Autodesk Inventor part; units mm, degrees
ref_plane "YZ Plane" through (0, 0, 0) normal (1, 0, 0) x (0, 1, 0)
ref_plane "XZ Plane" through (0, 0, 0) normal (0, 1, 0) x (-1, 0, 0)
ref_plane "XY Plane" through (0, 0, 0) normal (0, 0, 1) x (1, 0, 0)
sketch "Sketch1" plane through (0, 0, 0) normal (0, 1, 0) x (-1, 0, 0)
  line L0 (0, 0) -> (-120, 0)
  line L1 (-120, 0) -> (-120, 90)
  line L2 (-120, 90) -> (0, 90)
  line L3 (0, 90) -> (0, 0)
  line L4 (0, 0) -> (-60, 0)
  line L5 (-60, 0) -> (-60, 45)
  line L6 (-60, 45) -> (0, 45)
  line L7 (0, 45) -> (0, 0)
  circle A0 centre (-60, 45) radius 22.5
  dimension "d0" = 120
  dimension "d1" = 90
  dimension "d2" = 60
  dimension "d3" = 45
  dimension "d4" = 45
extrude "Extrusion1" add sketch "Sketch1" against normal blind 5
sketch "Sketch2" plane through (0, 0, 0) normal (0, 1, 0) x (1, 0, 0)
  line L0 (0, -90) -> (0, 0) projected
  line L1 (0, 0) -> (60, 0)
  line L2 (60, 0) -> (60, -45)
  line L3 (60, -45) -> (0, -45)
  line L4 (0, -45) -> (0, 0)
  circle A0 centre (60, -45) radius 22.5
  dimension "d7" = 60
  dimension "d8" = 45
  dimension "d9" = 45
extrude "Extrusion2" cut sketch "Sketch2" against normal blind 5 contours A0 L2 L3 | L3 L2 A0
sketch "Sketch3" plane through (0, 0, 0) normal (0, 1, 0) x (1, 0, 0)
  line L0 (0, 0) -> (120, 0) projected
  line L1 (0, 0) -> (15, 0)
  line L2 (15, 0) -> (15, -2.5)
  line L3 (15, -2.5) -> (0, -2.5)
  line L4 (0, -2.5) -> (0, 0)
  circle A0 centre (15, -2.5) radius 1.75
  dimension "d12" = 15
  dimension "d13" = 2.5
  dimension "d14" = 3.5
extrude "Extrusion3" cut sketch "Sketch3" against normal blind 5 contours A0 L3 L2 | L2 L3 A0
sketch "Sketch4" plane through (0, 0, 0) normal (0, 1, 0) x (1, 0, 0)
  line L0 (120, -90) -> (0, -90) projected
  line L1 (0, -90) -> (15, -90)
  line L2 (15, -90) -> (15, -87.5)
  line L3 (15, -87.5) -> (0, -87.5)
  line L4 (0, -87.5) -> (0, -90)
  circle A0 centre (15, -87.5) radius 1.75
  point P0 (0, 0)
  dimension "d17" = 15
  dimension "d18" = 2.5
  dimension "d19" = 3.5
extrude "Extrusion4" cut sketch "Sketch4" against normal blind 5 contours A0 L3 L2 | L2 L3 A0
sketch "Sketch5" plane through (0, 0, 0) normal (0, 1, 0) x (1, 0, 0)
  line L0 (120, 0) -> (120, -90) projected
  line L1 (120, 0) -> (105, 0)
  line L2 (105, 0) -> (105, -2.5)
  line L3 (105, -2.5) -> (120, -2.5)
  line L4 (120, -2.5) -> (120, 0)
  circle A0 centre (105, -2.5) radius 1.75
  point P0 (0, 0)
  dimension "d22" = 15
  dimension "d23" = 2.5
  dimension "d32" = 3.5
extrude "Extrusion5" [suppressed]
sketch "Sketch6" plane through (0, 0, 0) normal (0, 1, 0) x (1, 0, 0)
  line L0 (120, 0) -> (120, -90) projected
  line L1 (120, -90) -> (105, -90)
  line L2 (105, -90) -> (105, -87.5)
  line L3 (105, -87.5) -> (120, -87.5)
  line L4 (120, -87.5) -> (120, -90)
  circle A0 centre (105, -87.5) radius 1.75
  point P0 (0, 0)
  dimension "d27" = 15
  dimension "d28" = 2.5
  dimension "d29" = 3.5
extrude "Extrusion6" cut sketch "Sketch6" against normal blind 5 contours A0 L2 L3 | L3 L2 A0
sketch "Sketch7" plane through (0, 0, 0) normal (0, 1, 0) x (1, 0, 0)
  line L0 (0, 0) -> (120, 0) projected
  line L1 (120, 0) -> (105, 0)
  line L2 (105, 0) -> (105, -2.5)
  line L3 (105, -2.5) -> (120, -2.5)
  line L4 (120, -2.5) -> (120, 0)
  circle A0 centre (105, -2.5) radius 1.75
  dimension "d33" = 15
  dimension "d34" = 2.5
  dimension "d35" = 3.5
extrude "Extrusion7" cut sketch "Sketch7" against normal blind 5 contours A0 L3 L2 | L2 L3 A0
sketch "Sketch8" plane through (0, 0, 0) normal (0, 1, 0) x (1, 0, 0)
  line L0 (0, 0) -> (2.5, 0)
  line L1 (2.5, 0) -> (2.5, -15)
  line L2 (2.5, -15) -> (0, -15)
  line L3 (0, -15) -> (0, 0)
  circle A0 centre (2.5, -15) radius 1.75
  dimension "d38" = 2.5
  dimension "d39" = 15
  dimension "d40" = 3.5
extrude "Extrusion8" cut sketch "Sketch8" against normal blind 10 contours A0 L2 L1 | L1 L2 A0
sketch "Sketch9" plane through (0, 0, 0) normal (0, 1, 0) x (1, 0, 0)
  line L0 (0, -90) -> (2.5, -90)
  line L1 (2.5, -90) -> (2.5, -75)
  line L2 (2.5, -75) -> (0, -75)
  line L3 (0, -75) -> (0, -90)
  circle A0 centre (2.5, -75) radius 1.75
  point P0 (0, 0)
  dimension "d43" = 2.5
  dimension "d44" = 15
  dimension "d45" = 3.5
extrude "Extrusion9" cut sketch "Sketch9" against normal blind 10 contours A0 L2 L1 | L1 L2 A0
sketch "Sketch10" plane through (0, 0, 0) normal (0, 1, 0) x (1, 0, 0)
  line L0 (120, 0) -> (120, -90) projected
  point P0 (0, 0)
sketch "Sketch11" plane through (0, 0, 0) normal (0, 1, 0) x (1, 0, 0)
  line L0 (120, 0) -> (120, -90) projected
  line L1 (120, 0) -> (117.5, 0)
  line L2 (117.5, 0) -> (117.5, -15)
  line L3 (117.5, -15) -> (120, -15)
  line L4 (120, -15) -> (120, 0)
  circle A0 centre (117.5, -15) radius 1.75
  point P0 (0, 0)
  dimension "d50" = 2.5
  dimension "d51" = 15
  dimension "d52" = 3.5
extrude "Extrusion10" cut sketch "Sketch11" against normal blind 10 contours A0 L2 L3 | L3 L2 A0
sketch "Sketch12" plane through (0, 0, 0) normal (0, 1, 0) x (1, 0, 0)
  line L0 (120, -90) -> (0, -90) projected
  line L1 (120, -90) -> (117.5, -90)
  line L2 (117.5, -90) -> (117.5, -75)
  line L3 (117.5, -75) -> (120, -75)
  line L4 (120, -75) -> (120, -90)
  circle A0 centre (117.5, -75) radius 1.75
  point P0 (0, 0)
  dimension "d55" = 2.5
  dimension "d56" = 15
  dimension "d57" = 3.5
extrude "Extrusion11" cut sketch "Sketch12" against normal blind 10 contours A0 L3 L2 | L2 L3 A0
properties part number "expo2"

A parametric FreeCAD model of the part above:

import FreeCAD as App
import Part
import Sketcher
Q = App.Units.Quantity


def add_polygon(sketch, points):
    """Adds a closed chain of lines whose ends are joined by coincident constraints."""
    first, n = sketch.GeometryCount, len(points)
    for a, b in zip(points, points[1:] + points[:1]):
        sketch.addGeometry(Part.LineSegment(App.Vector(*a, 0), App.Vector(*b, 0)), False)
    for i in range(n):
        sketch.addConstraint(Sketcher.Constraint("Coincident", first + i, 2, first + (i + 1) % n, 1))

doc = App.newDocument("Part")
body = doc.addObject("PartDesign::Body", "Body")

# Sketch on XZ plane
sketch1 = body.newObject("Sketcher::SketchObject", "Sketch")
sketch1.AttachmentSupport = (doc.getObject("XZ_Plane"), [""])
sketch1.MapMode = "FlatFace"
add_polygon(sketch1, [(0, 0), (0, 90), (120, 90), (120, 0)])  # lines 0-3
sketch1.addConstraint(Sketcher.Constraint("Vertical", 0))
sketch1.addConstraint(Sketcher.Constraint("Horizontal", 1))
sketch1.addConstraint(Sketcher.Constraint("Vertical", 2))
sketch1.addConstraint(Sketcher.Constraint("Horizontal", 3))
sketch1.addConstraint(Sketcher.Constraint("Coincident", 3, 2, -1, 1))
sketch1.addConstraint(Sketcher.Constraint("DistanceX", 1, 1, 1, 2, Q("120 mm")))
sketch1.addConstraint(Sketcher.Constraint("DistanceY", 0, 1, 0, 2, Q("90 mm")))
pad1 = body.newObject("PartDesign::Pad", "Pad")
pad1.Profile = sketch1
pad1.Length = 5

# Sketch on XZ plane
sketch2 = body.newObject("Sketcher::SketchObject", "Sketch001")
sketch2.AttachmentSupport = (doc.getObject("XZ_Plane"), [""])
sketch2.MapMode = "FlatFace"
sketch2.addGeometry(Part.Circle(App.Vector(60, 45, 0), App.Vector(0, 0, 1), 22.5), False)
sketch2.addConstraint(Sketcher.Constraint("Diameter", 0, Q("45 mm")))
sketch2.addConstraint(Sketcher.Constraint("DistanceX", -1, 1, 0, 3, Q("60 mm")))
sketch2.addConstraint(Sketcher.Constraint("DistanceY", -1, 1, 0, 3, Q("45 mm")))
pocket1 = body.newObject("PartDesign::Pocket", "Pocket")
pocket1.Profile = sketch2
pocket1.Length = 5
pocket1.Reversed = True

# Sketch on XZ plane
sketch3 = body.newObject("Sketcher::SketchObject", "Sketch002")
sketch3.AttachmentSupport = (doc.getObject("XZ_Plane"), [""])
sketch3.MapMode = "FlatFace"
sketch3.addGeometry(Part.Circle(App.Vector(15, 2.5, 0), App.Vector(0, 0, 1), 1.75), False)
sketch3.addConstraint(Sketcher.Constraint("Diameter", 0, Q("3.5 mm")))
sketch3.addConstraint(Sketcher.Constraint("DistanceX", -1, 1, 0, 3, Q("15 mm")))
sketch3.addConstraint(Sketcher.Constraint("DistanceY", -1, 1, 0, 3, Q("2.5 mm")))
pocket2 = body.newObject("PartDesign::Pocket", "Pocket001")
pocket2.Profile = sketch3
pocket2.Length = 5
pocket2.Reversed = True

# Sketch on XZ plane
sketch4 = body.newObject("Sketcher::SketchObject", "Sketch003")
sketch4.AttachmentSupport = (doc.getObject("XZ_Plane"), [""])
sketch4.MapMode = "FlatFace"
sketch4.addGeometry(Part.Circle(App.Vector(15, 87.5, 0), App.Vector(0, 0, 1), 1.75), False)
sketch4.addConstraint(Sketcher.Constraint("Diameter", 0, Q("3.5 mm")))
sketch4.addConstraint(Sketcher.Constraint("DistanceX", -1, 1, 0, 3, Q("15 mm")))
sketch4.addConstraint(Sketcher.Constraint("DistanceY", -1, 1, 0, 3, Q("87.5 mm")))
pocket3 = body.newObject("PartDesign::Pocket", "Pocket002")
pocket3.Profile = sketch4
pocket3.Length = 5
pocket3.Reversed = True

# Sketch on XZ plane
sketch5 = body.newObject("Sketcher::SketchObject", "Sketch004")
sketch5.AttachmentSupport = (doc.getObject("XZ_Plane"), [""])
sketch5.MapMode = "FlatFace"
sketch5.addGeometry(Part.Circle(App.Vector(105, 87.5, 0), App.Vector(0, 0, 1), 1.75), False)
sketch5.addConstraint(Sketcher.Constraint("Diameter", 0, Q("3.5 mm")))
sketch5.addConstraint(Sketcher.Constraint("DistanceX", -1, 1, 0, 3, Q("105 mm")))
sketch5.addConstraint(Sketcher.Constraint("DistanceY", -1, 1, 0, 3, Q("87.5 mm")))
pocket4 = body.newObject("PartDesign::Pocket", "Pocket003")
pocket4.Profile = sketch5
pocket4.Length = 5
pocket4.Reversed = True

# Sketch on XZ plane
sketch6 = body.newObject("Sketcher::SketchObject", "Sketch005")
sketch6.AttachmentSupport = (doc.getObject("XZ_Plane"), [""])
sketch6.MapMode = "FlatFace"
sketch6.addGeometry(Part.Circle(App.Vector(105, 2.5, 0), App.Vector(0, 0, 1), 1.75), False)
sketch6.addConstraint(Sketcher.Constraint("Diameter", 0, Q("3.5 mm")))
sketch6.addConstraint(Sketcher.Constraint("DistanceY", -1, 1, 0, 3, Q("2.5 mm")))
sketch6.addConstraint(Sketcher.Constraint("DistanceX", -1, 1, 0, 3, Q("105 mm")))
pocket5 = body.newObject("PartDesign::Pocket", "Pocket004")
pocket5.Profile = sketch6
pocket5.Length = 5
pocket5.Reversed = True

# Sketch on XZ plane
sketch7 = body.newObject("Sketcher::SketchObject", "Sketch006")
sketch7.AttachmentSupport = (doc.getObject("XZ_Plane"), [""])
sketch7.MapMode = "FlatFace"
sketch7.addGeometry(Part.Circle(App.Vector(2.5, 15, 0), App.Vector(0, 0, 1), 1.75), False)
sketch7.addConstraint(Sketcher.Constraint("Diameter", 0, Q("3.5 mm")))
sketch7.addConstraint(Sketcher.Constraint("DistanceY", -1, 1, 0, 3, Q("15 mm")))
sketch7.addConstraint(Sketcher.Constraint("DistanceX", -1, 1, 0, 3, Q("2.5 mm")))
pocket6 = body.newObject("PartDesign::Pocket", "Pocket005")
pocket6.Profile = sketch7
pocket6.Length = 10
pocket6.Reversed = True

# Sketch on XZ plane
sketch8 = body.newObject("Sketcher::SketchObject", "Sketch007")
sketch8.AttachmentSupport = (doc.getObject("XZ_Plane"), [""])
sketch8.MapMode = "FlatFace"
sketch8.addGeometry(Part.Circle(App.Vector(2.5, 75, 0), App.Vector(0, 0, 1), 1.75), False)
sketch8.addConstraint(Sketcher.Constraint("Diameter", 0, Q("3.5 mm")))
sketch8.addConstraint(Sketcher.Constraint("DistanceX", -1, 1, 0, 3, Q("2.5 mm")))
sketch8.addConstraint(Sketcher.Constraint("DistanceY", -1, 1, 0, 3, Q("75 mm")))
pocket7 = body.newObject("PartDesign::Pocket", "Pocket006")
pocket7.Profile = sketch8
pocket7.Length = 10
pocket7.Reversed = True

# Sketch on XZ plane
sketch9 = body.newObject("Sketcher::SketchObject", "Sketch008")
sketch9.AttachmentSupport = (doc.getObject("XZ_Plane"), [""])
sketch9.MapMode = "FlatFace"
sketch9.addGeometry(Part.Circle(App.Vector(117.5, 15, 0), App.Vector(0, 0, 1), 1.75), False)
sketch9.addConstraint(Sketcher.Constraint("Diameter", 0, Q("3.5 mm")))
sketch9.addConstraint(Sketcher.Constraint("DistanceY", -1, 1, 0, 3, Q("15 mm")))
sketch9.addConstraint(Sketcher.Constraint("DistanceX", -1, 1, 0, 3, Q("117.5 mm")))
pocket8 = body.newObject("PartDesign::Pocket", "Pocket007")
pocket8.Profile = sketch9
pocket8.Length = 10
pocket8.Reversed = True

# Sketch on XZ plane
sketch10 = body.newObject("Sketcher::SketchObject", "Sketch009")
sketch10.AttachmentSupport = (doc.getObject("XZ_Plane"), [""])
sketch10.MapMode = "FlatFace"
sketch10.addGeometry(Part.Circle(App.Vector(117.5, 75, 0), App.Vector(0, 0, 1), 1.75), False)
sketch10.addConstraint(Sketcher.Constraint("Diameter", 0, Q("3.5 mm")))
sketch10.addConstraint(Sketcher.Constraint("DistanceY", -1, 1, 0, 3, Q("75 mm")))
sketch10.addConstraint(Sketcher.Constraint("DistanceX", -1, 1, 0, 3, Q("117.5 mm")))
pocket9 = body.newObject("PartDesign::Pocket", "Pocket008")
pocket9.Profile = sketch10
pocket9.Length = 10
pocket9.Reversed = True

doc.recompute()
